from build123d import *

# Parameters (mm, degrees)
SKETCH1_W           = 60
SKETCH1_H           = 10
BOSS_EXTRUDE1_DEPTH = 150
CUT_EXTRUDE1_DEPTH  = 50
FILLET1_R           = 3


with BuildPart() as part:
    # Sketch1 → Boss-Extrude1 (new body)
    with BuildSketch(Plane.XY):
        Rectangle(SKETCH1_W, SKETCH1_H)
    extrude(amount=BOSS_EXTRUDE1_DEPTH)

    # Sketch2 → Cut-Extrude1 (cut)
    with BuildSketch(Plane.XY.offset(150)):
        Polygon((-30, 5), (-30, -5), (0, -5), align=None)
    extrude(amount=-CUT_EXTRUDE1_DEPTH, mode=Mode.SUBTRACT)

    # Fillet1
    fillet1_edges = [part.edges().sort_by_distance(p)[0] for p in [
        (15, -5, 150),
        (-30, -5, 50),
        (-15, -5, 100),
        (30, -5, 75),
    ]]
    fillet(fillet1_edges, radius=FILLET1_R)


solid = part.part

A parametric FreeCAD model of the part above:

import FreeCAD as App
import Part
import Sketcher

V = App.Vector
Q = App.Units.Quantity


def edges_at(feature, points):
    """Names of the edges that pass closest to the given points."""
    edges = feature.Shape.Edges
    near = lambda p: min(range(len(edges)), key=lambda i: edges[i].distToShape(Part.Vertex(*p))[0])
    return sorted({f"Edge{near(p) + 1}" for p in points})

doc = App.newDocument("Part")
body = doc.addObject("PartDesign::Body", "Body")

# Sketch on XY plane
sketch1 = body.newObject("Sketcher::SketchObject", "Sketch")
sketch1.AttachmentSupport = (doc.getObject("XY_Plane"), [""])
sketch1.MapMode = "FlatFace"
sketch1.addGeometry(Part.LineSegment(V(-30, 5, 0), V(-30, -5, 0)), False)
sketch1.addGeometry(Part.LineSegment(V(-30, -5, 0), V(30, -5, 0)), False)
sketch1.addGeometry(Part.LineSegment(V(30, -5, 0), V(30, 5, 0)), False)
sketch1.addGeometry(Part.LineSegment(V(30, 5, 0), V(-30, 5, 0)), False)
sketch1.addConstraint(Sketcher.Constraint("Coincident", 0, 2, 1, 1))
sketch1.addConstraint(Sketcher.Constraint("Coincident", 1, 2, 2, 1))
sketch1.addConstraint(Sketcher.Constraint("Coincident", 2, 2, 3, 1))
sketch1.addConstraint(Sketcher.Constraint("Coincident", 3, 2, 0, 1))
sketch1.addConstraint(Sketcher.Constraint("Vertical", 0))
sketch1.addConstraint(Sketcher.Constraint("Horizontal", 1))
sketch1.addConstraint(Sketcher.Constraint("Vertical", 2))
sketch1.addConstraint(Sketcher.Constraint("Horizontal", 3))
sketch1.addConstraint(Sketcher.Constraint("Symmetric", 0, 2, 2, 2, -1, 1))
sketch1.addConstraint(Sketcher.Constraint("DistanceX", 1, 1, 1, 2, Q("60 mm")))
sketch1.addConstraint(Sketcher.Constraint("DistanceY", 0, 2, 0, 1, Q("10 mm")))
pad1 = body.newObject("PartDesign::Pad", "Pad")
pad1.Profile = sketch1
pad1.Length = 150

# Sketch on XY plane
sketch2 = body.newObject("Sketcher::SketchObject", "Sketch001")
sketch2.AttachmentSupport = (doc.getObject("XY_Plane"), [""])
sketch2.MapMode = "FlatFace"
sketch2.AttachmentOffset = App.Placement(V(0, 0, 150), App.Rotation())
sketch2.addGeometry(Part.LineSegment(V(-30, 5, 0), V(-30, -5, 0)), False)
sketch2.addGeometry(Part.LineSegment(V(-30, -5, 0), V(0, -5, 0)), False)
sketch2.addGeometry(Part.LineSegment(V(0, -5, 0), V(-30, 5, 0)), False)
sketch2.addConstraint(Sketcher.Constraint("Coincident", 0, 2, 1, 1))
sketch2.addConstraint(Sketcher.Constraint("Coincident", 1, 2, 2, 1))
sketch2.addConstraint(Sketcher.Constraint("Coincident", 2, 2, 0, 1))
sketch2.addConstraint(Sketcher.Constraint("Vertical", 0))
sketch2.addConstraint(Sketcher.Constraint("Horizontal", 1))
sketch2.addConstraint(Sketcher.Constraint("PointOnObject", 1, 2, -2))
sketch2.addConstraint(Sketcher.Constraint("DistanceX", 1, 1, 1, 2, Q("30 mm")))
sketch2.addConstraint(Sketcher.Constraint("DistanceY", 0, 2, 0, 1, Q("10 mm")))
sketch2.addConstraint(Sketcher.Constraint("DistanceY", 0, 2, -1, 1, Q("5 mm")))
pocket1 = body.newObject("PartDesign::Pocket", "Pocket")
pocket1.Profile = sketch2
pocket1.Length = 50
doc.recompute()

fillet = body.newObject("PartDesign::Fillet", "Fillet")
fillet.Base = (pocket1, edges_at(pocket1, [
    (15, -5, 150),
    (-30, -5, 50),
    (-15, -5, 100),
    (30, -5, 75),
]))
fillet.Radius = 3

doc.recompute()
